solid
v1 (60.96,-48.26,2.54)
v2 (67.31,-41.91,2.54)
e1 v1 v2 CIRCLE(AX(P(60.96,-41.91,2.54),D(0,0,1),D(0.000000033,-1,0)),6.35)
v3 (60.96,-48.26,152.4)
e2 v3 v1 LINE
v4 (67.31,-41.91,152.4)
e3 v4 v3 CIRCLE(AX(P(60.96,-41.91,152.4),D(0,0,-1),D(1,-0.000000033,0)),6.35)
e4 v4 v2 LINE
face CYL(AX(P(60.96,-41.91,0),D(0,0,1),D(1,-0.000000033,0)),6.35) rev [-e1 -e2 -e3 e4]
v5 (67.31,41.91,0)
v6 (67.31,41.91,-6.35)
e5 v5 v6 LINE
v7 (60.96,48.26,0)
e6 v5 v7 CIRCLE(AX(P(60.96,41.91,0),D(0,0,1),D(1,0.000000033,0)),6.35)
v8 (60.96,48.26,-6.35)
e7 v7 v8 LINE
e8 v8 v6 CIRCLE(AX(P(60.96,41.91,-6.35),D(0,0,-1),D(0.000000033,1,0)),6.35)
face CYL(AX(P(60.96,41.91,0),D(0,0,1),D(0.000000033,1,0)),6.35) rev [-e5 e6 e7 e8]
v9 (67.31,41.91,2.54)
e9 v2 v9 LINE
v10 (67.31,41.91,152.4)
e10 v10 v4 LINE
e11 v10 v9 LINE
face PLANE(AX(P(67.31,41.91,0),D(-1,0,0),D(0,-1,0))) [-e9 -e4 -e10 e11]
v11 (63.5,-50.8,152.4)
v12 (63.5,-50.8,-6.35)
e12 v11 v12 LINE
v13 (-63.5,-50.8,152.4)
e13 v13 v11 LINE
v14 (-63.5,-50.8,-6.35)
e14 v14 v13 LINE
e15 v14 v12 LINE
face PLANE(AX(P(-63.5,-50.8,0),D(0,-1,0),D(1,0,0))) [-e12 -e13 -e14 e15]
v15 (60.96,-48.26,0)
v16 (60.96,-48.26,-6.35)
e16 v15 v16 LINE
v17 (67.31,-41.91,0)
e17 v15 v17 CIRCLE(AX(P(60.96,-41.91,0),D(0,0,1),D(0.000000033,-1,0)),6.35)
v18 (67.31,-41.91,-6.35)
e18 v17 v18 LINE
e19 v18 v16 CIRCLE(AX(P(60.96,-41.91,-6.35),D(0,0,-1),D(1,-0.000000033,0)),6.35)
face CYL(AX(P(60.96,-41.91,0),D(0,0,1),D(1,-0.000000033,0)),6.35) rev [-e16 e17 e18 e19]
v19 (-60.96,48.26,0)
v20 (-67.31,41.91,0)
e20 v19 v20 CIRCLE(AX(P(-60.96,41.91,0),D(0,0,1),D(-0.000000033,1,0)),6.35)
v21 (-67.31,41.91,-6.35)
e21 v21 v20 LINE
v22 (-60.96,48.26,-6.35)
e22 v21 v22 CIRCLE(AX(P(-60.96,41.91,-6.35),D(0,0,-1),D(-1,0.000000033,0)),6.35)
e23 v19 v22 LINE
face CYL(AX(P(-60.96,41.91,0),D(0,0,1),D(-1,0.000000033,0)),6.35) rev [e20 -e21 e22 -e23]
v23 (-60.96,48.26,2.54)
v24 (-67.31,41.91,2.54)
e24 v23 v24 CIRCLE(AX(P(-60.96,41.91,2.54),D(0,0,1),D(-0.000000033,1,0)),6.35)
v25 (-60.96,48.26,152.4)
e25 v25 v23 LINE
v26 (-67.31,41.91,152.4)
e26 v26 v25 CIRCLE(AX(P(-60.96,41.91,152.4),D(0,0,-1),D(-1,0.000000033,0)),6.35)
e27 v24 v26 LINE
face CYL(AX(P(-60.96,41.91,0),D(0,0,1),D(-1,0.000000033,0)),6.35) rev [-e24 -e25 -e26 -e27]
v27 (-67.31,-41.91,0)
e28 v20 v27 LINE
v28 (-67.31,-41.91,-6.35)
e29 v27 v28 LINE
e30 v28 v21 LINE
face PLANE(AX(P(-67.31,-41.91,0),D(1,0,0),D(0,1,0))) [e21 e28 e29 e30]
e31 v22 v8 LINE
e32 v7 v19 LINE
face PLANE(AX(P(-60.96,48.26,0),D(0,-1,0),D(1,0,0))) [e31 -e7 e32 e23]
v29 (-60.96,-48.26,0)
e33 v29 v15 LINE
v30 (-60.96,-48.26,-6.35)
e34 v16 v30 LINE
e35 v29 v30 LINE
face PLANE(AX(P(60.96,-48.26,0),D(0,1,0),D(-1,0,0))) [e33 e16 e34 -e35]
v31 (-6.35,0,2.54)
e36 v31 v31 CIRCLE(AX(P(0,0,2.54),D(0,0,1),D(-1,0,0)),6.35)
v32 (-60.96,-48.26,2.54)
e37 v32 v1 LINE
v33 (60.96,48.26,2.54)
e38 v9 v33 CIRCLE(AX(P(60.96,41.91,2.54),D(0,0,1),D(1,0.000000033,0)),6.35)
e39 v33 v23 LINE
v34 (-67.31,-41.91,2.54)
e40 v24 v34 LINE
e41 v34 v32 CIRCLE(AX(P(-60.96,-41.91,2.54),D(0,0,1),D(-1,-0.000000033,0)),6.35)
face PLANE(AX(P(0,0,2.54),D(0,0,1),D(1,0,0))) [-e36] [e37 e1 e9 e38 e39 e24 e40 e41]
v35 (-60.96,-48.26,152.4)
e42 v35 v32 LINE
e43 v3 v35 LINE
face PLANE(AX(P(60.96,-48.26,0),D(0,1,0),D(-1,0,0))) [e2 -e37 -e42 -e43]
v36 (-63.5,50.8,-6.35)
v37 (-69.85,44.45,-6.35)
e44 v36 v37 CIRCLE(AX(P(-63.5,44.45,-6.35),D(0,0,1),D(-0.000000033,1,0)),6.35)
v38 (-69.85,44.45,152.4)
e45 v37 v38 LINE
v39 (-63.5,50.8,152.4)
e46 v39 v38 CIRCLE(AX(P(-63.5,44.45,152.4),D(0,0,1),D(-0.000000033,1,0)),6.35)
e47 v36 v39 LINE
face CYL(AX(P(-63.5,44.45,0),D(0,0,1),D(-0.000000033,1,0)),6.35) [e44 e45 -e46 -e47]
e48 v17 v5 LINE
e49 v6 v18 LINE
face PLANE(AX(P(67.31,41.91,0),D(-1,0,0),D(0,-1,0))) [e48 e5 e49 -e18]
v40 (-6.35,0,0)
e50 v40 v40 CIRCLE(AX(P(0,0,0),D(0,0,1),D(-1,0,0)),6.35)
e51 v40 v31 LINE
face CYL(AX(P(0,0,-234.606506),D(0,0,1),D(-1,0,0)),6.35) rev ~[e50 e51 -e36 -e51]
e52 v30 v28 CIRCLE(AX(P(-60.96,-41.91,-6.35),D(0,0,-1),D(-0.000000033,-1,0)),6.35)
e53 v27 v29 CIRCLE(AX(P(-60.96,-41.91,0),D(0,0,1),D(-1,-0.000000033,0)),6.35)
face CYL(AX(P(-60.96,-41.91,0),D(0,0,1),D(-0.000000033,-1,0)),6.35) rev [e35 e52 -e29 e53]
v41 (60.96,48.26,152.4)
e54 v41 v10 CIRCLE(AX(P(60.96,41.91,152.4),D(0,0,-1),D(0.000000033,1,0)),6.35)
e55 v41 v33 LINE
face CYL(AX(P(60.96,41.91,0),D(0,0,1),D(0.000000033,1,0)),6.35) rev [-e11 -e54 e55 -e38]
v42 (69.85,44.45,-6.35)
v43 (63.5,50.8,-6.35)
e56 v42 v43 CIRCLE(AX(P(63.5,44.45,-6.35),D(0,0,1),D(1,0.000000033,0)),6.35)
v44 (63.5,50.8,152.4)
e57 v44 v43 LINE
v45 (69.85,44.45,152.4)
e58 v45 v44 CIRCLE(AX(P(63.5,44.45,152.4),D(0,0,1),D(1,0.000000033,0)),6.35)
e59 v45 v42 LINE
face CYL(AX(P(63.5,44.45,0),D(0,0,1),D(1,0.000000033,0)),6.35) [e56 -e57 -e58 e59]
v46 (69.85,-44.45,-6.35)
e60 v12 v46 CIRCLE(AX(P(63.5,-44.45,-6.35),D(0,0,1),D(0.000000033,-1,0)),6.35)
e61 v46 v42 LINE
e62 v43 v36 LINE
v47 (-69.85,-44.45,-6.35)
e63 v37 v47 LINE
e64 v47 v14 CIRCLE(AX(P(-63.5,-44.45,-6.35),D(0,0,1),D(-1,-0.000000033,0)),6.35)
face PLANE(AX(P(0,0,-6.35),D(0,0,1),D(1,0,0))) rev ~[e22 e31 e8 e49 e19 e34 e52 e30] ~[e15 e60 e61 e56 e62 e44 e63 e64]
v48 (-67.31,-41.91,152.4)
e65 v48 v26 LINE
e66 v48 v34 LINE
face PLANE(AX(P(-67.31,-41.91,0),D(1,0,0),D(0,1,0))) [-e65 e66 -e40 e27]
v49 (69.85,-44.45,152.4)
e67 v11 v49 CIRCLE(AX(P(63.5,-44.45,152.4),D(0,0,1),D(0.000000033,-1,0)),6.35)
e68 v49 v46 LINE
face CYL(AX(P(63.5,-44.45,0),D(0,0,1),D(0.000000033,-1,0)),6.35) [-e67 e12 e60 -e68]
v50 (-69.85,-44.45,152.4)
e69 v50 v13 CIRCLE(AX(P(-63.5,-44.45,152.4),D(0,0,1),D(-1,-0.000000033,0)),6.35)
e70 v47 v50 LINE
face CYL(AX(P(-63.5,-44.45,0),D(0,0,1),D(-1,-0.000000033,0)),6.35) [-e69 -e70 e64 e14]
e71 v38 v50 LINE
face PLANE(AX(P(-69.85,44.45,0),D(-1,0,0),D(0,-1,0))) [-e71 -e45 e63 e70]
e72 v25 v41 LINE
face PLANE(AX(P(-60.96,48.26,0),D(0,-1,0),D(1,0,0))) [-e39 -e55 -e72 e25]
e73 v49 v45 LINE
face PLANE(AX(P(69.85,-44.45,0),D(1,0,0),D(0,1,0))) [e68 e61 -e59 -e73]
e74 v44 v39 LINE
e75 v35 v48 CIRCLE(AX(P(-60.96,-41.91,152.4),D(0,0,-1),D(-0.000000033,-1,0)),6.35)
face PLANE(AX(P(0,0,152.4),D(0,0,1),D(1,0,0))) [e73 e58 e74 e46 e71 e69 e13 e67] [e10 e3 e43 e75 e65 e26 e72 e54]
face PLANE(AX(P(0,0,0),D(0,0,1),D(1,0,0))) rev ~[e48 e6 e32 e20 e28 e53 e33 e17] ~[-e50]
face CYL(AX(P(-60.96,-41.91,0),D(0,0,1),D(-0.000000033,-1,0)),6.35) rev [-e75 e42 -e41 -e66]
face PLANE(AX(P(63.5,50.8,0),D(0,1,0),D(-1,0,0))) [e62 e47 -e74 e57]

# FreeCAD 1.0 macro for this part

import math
import FreeCAD as App
import Part
import Sketcher

V = App.Vector
Q = App.Units.Quantity

doc = App.newDocument("Part")
body = doc.addObject("PartDesign::Body", "Body")

# Sketch on XY plane
sketch1 = body.newObject("Sketcher::SketchObject", "Sketch")
sketch1.AttachmentSupport = (doc.getObject("XY_Plane"), [""])
sketch1.MapMode = "FlatFace"
sketch1.addGeometry([
    Part.LineSegment(V(64, 51, 0), V(-64, 51, 0)),  # 0
    Part.ArcOfCircle(Part.Circle(V(-63, 44, 0), V(0, 0, 1), 6), math.radians(90), math.radians(180)),  # 1
    Part.LineSegment(V(-70, 44, 0), V(-70, -44, 0)),  # 2
    Part.ArcOfCircle(Part.Circle(V(-63, -44, 0), V(0, 0, 1), 6), math.radians(-180), math.radians(-90)),  # 3
    Part.LineSegment(V(-64, -51, 0), V(64, -51, 0)),  # 4
    Part.ArcOfCircle(Part.Circle(V(63, -44, 0), V(0, 0, 1), 6), math.radians(-90), math.radians(0)),  # 5
    Part.LineSegment(V(70, -44, 0), V(70, 44, 0)),  # 6
    Part.ArcOfCircle(Part.Circle(V(63, 44, 0), V(0, 0, 1), 6), math.radians(0), math.radians(90)),  # 7
    Part.LineSegment(V(-67, -42, 0), V(-67, 42, 0)),  # 8
    Part.ArcOfCircle(Part.Circle(V(-61, 42, 0), V(0, 0, 1), 6), math.radians(90), math.radians(180)),  # 9
    Part.LineSegment(V(-61, 48, 0), V(61, 48, 0)),  # 10
    Part.ArcOfCircle(Part.Circle(V(61, 42, 0), V(0, 0, 1), 6), math.radians(0), math.radians(90)),  # 11
    Part.LineSegment(V(67, 42, 0), V(67, -42, 0)),  # 12
    Part.ArcOfCircle(Part.Circle(V(61, -42, 0), V(0, 0, 1), 6), math.radians(-90), math.radians(0)),  # 13
    Part.LineSegment(V(61, -48, 0), V(-61, -48, 0)),  # 14
    Part.ArcOfCircle(Part.Circle(V(-61, -42, 0), V(0, 0, 1), 6), math.radians(-180), math.radians(-90)),  # 15
], False)
sketch1.addConstraint([
    Sketcher.Constraint("Tangent", 0, 2, 1, 1),
    Sketcher.Constraint("Tangent", 1, 2, 2, 1),
    Sketcher.Constraint("Tangent", 2, 2, 3, 1),
    Sketcher.Constraint("Tangent", 3, 2, 4, 1),
    Sketcher.Constraint("Tangent", 4, 2, 5, 1),
    Sketcher.Constraint("Tangent", 5, 2, 6, 1),
    Sketcher.Constraint("Tangent", 6, 2, 7, 1),
    Sketcher.Constraint("Tangent", 7, 2, 0, 1),
    Sketcher.Constraint("Tangent", 8, 2, 9, 2),
    Sketcher.Constraint("Tangent", 9, 1, 10, 1),
    Sketcher.Constraint("Tangent", 10, 2, 11, 2),
    Sketcher.Constraint("Tangent", 11, 1, 12, 1),
    Sketcher.Constraint("Tangent", 12, 2, 13, 2),
    Sketcher.Constraint("Tangent", 13, 1, 14, 1),
    Sketcher.Constraint("Tangent", 14, 2, 15, 2),
    Sketcher.Constraint("Tangent", 15, 1, 8, 1),
    Sketcher.Constraint("Horizontal", 0),
    Sketcher.Constraint("Vertical", 2),
    Sketcher.Constraint("Horizontal", 4),
    Sketcher.Constraint("Vertical", 6),
    Sketcher.Constraint("Vertical", 8),
    Sketcher.Constraint("Horizontal", 10),
    Sketcher.Constraint("Vertical", 12),
    Sketcher.Constraint("Horizontal", 14),
    Sketcher.Constraint("Equal", 1, 3),
    Sketcher.Constraint("Equal", 3, 5),
    Sketcher.Constraint("Equal", 5, 7),
    Sketcher.Constraint("Equal", 7, 9),
    Sketcher.Constraint("Equal", 9, 11),
    Sketcher.Constraint("Equal", 11, 13),
    Sketcher.Constraint("Equal", 13, 15),
    Sketcher.Constraint("Symmetric", 1, 3, 5, 3, -1, 1),
    Sketcher.Constraint("Symmetric", 9, 3, 13, 3, -1, 1),
    Sketcher.Constraint("DistanceX", 0, 2, 0, 1, Q("5 in")),
    Sketcher.Constraint("Radius", 1, Q("0.25 in")),
    Sketcher.Constraint("DistanceX", 10, 1, 10, 2, Q("4.8 in")),
    Sketcher.Constraint("DistanceY", 2, 2, 2, 1, Q("3.5 in")),
    Sketcher.Constraint("DistanceY", 8, 1, 8, 2, Q("3.3 in")),
])
pad1 = body.newObject("PartDesign::Pad", "Pad")
pad1.Profile = sketch1
pad1.Length = Q("6 in")

# Sketch on XY plane
sketch2 = body.newObject("Sketcher::SketchObject", "Sketch001")
sketch2.AttachmentSupport = (doc.getObject("XY_Plane"), [""])
sketch2.MapMode = "FlatFace"
sketch2.addGeometry([
    Part.LineSegment(V(64, 51, 0), V(-64, 51, 0)),  # 0
    Part.ArcOfCircle(Part.Circle(V(-63, 44, 0), V(0, 0, 1), 6), math.radians(90), math.radians(180)),  # 1
    Part.LineSegment(V(-70, 44, 0), V(-70, -44, 0)),  # 2
    Part.ArcOfCircle(Part.Circle(V(-63, -44, 0), V(0, 0, 1), 6), math.radians(-180), math.radians(-90)),  # 3
    Part.LineSegment(V(-64, -51, 0), V(64, -51, 0)),  # 4
    Part.ArcOfCircle(Part.Circle(V(63, -44, 0), V(0, 0, 1), 6), math.radians(-90), math.radians(0)),  # 5
    Part.LineSegment(V(70, -44, 0), V(70, 44, 0)),  # 6
    Part.ArcOfCircle(Part.Circle(V(63, 44, 0), V(0, 0, 1), 6), math.radians(0), math.radians(90)),  # 7
    Part.LineSegment(V(-67, -42, 0), V(-67, 42, 0)),  # 8
    Part.ArcOfCircle(Part.Circle(V(-61, 42, 0), V(0, 0, 1), 6), math.radians(90), math.radians(180)),  # 9
    Part.LineSegment(V(-61, 48, 0), V(61, 48, 0)),  # 10
    Part.ArcOfCircle(Part.Circle(V(61, 42, 0), V(0, 0, 1), 6), math.radians(0), math.radians(90)),  # 11
    Part.LineSegment(V(67, 42, 0), V(67, -42, 0)),  # 12
    Part.ArcOfCircle(Part.Circle(V(61, -42, 0), V(0, 0, 1), 6), math.radians(-90), math.radians(0)),  # 13
    Part.LineSegment(V(61, -48, 0), V(-61, -48, 0)),  # 14
    Part.ArcOfCircle(Part.Circle(V(-61, -42, 0), V(0, 0, 1), 6), math.radians(-180), math.radians(-90)),  # 15
], False)
sketch2.addConstraint([
    Sketcher.Constraint("Tangent", 0, 2, 1, 1),
    Sketcher.Constraint("Tangent", 1, 2, 2, 1),
    Sketcher.Constraint("Tangent", 2, 2, 3, 1),
    Sketcher.Constraint("Tangent", 3, 2, 4, 1),
    Sketcher.Constraint("Tangent", 4, 2, 5, 1),
    Sketcher.Constraint("Tangent", 5, 2, 6, 1),
    Sketcher.Constraint("Tangent", 6, 2, 7, 1),
    Sketcher.Constraint("Tangent", 7, 2, 0, 1),
    Sketcher.Constraint("Tangent", 8, 2, 9, 2),
    Sketcher.Constraint("Tangent", 9, 1, 10, 1),
    Sketcher.Constraint("Tangent", 10, 2, 11, 2),
    Sketcher.Constraint("Tangent", 11, 1, 12, 1),
    Sketcher.Constraint("Tangent", 12, 2, 13, 2),
    Sketcher.Constraint("Tangent", 13, 1, 14, 1),
    Sketcher.Constraint("Tangent", 14, 2, 15, 2),
    Sketcher.Constraint("Tangent", 15, 1, 8, 1),
    Sketcher.Constraint("Horizontal", 0),
    Sketcher.Constraint("Vertical", 2),
    Sketcher.Constraint("Horizontal", 4),
    Sketcher.Constraint("Vertical", 6),
    Sketcher.Constraint("Vertical", 8),
    Sketcher.Constraint("Horizontal", 10),
    Sketcher.Constraint("Vertical", 12),
    Sketcher.Constraint("Horizontal", 14),
    Sketcher.Constraint("Equal", 1, 3),
    Sketcher.Constraint("Equal", 3, 5),
    Sketcher.Constraint("Equal", 5, 7),
    Sketcher.Constraint("Equal", 7, 9),
    Sketcher.Constraint("Equal", 9, 11),
    Sketcher.Constraint("Equal", 11, 13),
    Sketcher.Constraint("Equal", 13, 15),
    Sketcher.Constraint("Symmetric", 1, 3, 5, 3, -1, 1),
    Sketcher.Constraint("Symmetric", 9, 3, 13, 3, -1, 1),
    Sketcher.Constraint("DistanceX", 0, 2, 0, 1, Q("5 in")),
    Sketcher.Constraint("Radius", 1, Q("0.25 in")),
    Sketcher.Constraint("DistanceX", 10, 1, 10, 2, Q("4.8 in")),
    Sketcher.Constraint("DistanceY", 2, 2, 2, 1, Q("3.5 in")),
    Sketcher.Constraint("DistanceY", 8, 1, 8, 2, Q("3.3 in")),
])
pad2 = body.newObject("PartDesign::Pad", "Pad001")
pad2.Profile = sketch2
pad2.Length = Q("0.25 in")
pad2.Reversed = True

# Sketch on XY plane
sketch3 = body.newObject("Sketcher::SketchObject", "Sketch002")
sketch3.AttachmentSupport = (doc.getObject("XY_Plane"), [""])
sketch3.MapMode = "FlatFace"
sketch3.addGeometry([
    Part.LineSegment(V(61, 48, 0), V(-61, 48, 0)),  # 0
    Part.ArcOfCircle(Part.Circle(V(-61, 42, 0), V(0, 0, 1), 6), math.radians(90), math.radians(180)),  # 1
    Part.LineSegment(V(-67, 42, 0), V(-67, -42, 0)),  # 2
    Part.ArcOfCircle(Part.Circle(V(-61, -42, 0), V(0, 0, 1), 6), math.radians(-180), math.radians(-90)),  # 3
    Part.LineSegment(V(-61, -48, 0), V(61, -48, 0)),  # 4
    Part.ArcOfCircle(Part.Circle(V(61, -42, 0), V(0, 0, 1), 6), math.radians(-90), math.radians(0)),  # 5
    Part.LineSegment(V(67, -42, 0), V(67, 42, 0)),  # 6
    Part.ArcOfCircle(Part.Circle(V(61, 42, 0), V(0, 0, 1), 6), math.radians(0), math.radians(90)),  # 7
], False)
sketch3.addConstraint([
    Sketcher.Constraint("Tangent", 0, 2, 1, 1),
    Sketcher.Constraint("Tangent", 1, 2, 2, 1),
    Sketcher.Constraint("Tangent", 2, 2, 3, 1),
    Sketcher.Constraint("Tangent", 3, 2, 4, 1),
    Sketcher.Constraint("Tangent", 4, 2, 5, 1),
    Sketcher.Constraint("Tangent", 5, 2, 6, 1),
    Sketcher.Constraint("Tangent", 6, 2, 7, 1),
    Sketcher.Constraint("Tangent", 7, 2, 0, 1),
    Sketcher.Constraint("Horizontal", 0),
    Sketcher.Constraint("Vertical", 2),
    Sketcher.Constraint("Horizontal", 4),
    Sketcher.Constraint("Vertical", 6),
    Sketcher.Constraint("Equal", 1, 3),
    Sketcher.Constraint("Equal", 3, 5),
    Sketcher.Constraint("Equal", 5, 7),
    Sketcher.Constraint("Symmetric", 1, 3, 5, 3, -1, 1),
    Sketcher.Constraint("Radius", 1, Q("0.25 in")),
    Sketcher.Constraint("DistanceX", 0, 2, 0, 1, Q("4.8 in")),
    Sketcher.Constraint("DistanceY", 2, 2, 2, 1, Q("3.3 in")),
])
pad3 = body.newObject("PartDesign::Pad", "Pad002")
pad3.Profile = sketch3
pad3.Length = Q("0.1 in")

# Sketch on XY plane
sketch4 = body.newObject("Sketcher::SketchObject", "Sketch003")
sketch4.AttachmentSupport = (doc.getObject("XY_Plane"), [""])
sketch4.MapMode = "FlatFace"
sketch4.addGeometry(Part.Circle(V(0, 0, 0), V(0, 0, 1), 6), False)
sketch4.addConstraint([
    Sketcher.Constraint("Coincident", 0, 3, -1, 1),
    Sketcher.Constraint("Diameter", 0, Q("0.5 in")),
])
doc.recompute()
hole = body.newObject("PartDesign::Hole", "Hole")
hole.Profile = sketch4
hole.ThreadType = "None"
hole.Diameter = Q("0.5 in")
hole.DepthType = "ThroughAll"
hole.Reversed = True

doc.recompute()
